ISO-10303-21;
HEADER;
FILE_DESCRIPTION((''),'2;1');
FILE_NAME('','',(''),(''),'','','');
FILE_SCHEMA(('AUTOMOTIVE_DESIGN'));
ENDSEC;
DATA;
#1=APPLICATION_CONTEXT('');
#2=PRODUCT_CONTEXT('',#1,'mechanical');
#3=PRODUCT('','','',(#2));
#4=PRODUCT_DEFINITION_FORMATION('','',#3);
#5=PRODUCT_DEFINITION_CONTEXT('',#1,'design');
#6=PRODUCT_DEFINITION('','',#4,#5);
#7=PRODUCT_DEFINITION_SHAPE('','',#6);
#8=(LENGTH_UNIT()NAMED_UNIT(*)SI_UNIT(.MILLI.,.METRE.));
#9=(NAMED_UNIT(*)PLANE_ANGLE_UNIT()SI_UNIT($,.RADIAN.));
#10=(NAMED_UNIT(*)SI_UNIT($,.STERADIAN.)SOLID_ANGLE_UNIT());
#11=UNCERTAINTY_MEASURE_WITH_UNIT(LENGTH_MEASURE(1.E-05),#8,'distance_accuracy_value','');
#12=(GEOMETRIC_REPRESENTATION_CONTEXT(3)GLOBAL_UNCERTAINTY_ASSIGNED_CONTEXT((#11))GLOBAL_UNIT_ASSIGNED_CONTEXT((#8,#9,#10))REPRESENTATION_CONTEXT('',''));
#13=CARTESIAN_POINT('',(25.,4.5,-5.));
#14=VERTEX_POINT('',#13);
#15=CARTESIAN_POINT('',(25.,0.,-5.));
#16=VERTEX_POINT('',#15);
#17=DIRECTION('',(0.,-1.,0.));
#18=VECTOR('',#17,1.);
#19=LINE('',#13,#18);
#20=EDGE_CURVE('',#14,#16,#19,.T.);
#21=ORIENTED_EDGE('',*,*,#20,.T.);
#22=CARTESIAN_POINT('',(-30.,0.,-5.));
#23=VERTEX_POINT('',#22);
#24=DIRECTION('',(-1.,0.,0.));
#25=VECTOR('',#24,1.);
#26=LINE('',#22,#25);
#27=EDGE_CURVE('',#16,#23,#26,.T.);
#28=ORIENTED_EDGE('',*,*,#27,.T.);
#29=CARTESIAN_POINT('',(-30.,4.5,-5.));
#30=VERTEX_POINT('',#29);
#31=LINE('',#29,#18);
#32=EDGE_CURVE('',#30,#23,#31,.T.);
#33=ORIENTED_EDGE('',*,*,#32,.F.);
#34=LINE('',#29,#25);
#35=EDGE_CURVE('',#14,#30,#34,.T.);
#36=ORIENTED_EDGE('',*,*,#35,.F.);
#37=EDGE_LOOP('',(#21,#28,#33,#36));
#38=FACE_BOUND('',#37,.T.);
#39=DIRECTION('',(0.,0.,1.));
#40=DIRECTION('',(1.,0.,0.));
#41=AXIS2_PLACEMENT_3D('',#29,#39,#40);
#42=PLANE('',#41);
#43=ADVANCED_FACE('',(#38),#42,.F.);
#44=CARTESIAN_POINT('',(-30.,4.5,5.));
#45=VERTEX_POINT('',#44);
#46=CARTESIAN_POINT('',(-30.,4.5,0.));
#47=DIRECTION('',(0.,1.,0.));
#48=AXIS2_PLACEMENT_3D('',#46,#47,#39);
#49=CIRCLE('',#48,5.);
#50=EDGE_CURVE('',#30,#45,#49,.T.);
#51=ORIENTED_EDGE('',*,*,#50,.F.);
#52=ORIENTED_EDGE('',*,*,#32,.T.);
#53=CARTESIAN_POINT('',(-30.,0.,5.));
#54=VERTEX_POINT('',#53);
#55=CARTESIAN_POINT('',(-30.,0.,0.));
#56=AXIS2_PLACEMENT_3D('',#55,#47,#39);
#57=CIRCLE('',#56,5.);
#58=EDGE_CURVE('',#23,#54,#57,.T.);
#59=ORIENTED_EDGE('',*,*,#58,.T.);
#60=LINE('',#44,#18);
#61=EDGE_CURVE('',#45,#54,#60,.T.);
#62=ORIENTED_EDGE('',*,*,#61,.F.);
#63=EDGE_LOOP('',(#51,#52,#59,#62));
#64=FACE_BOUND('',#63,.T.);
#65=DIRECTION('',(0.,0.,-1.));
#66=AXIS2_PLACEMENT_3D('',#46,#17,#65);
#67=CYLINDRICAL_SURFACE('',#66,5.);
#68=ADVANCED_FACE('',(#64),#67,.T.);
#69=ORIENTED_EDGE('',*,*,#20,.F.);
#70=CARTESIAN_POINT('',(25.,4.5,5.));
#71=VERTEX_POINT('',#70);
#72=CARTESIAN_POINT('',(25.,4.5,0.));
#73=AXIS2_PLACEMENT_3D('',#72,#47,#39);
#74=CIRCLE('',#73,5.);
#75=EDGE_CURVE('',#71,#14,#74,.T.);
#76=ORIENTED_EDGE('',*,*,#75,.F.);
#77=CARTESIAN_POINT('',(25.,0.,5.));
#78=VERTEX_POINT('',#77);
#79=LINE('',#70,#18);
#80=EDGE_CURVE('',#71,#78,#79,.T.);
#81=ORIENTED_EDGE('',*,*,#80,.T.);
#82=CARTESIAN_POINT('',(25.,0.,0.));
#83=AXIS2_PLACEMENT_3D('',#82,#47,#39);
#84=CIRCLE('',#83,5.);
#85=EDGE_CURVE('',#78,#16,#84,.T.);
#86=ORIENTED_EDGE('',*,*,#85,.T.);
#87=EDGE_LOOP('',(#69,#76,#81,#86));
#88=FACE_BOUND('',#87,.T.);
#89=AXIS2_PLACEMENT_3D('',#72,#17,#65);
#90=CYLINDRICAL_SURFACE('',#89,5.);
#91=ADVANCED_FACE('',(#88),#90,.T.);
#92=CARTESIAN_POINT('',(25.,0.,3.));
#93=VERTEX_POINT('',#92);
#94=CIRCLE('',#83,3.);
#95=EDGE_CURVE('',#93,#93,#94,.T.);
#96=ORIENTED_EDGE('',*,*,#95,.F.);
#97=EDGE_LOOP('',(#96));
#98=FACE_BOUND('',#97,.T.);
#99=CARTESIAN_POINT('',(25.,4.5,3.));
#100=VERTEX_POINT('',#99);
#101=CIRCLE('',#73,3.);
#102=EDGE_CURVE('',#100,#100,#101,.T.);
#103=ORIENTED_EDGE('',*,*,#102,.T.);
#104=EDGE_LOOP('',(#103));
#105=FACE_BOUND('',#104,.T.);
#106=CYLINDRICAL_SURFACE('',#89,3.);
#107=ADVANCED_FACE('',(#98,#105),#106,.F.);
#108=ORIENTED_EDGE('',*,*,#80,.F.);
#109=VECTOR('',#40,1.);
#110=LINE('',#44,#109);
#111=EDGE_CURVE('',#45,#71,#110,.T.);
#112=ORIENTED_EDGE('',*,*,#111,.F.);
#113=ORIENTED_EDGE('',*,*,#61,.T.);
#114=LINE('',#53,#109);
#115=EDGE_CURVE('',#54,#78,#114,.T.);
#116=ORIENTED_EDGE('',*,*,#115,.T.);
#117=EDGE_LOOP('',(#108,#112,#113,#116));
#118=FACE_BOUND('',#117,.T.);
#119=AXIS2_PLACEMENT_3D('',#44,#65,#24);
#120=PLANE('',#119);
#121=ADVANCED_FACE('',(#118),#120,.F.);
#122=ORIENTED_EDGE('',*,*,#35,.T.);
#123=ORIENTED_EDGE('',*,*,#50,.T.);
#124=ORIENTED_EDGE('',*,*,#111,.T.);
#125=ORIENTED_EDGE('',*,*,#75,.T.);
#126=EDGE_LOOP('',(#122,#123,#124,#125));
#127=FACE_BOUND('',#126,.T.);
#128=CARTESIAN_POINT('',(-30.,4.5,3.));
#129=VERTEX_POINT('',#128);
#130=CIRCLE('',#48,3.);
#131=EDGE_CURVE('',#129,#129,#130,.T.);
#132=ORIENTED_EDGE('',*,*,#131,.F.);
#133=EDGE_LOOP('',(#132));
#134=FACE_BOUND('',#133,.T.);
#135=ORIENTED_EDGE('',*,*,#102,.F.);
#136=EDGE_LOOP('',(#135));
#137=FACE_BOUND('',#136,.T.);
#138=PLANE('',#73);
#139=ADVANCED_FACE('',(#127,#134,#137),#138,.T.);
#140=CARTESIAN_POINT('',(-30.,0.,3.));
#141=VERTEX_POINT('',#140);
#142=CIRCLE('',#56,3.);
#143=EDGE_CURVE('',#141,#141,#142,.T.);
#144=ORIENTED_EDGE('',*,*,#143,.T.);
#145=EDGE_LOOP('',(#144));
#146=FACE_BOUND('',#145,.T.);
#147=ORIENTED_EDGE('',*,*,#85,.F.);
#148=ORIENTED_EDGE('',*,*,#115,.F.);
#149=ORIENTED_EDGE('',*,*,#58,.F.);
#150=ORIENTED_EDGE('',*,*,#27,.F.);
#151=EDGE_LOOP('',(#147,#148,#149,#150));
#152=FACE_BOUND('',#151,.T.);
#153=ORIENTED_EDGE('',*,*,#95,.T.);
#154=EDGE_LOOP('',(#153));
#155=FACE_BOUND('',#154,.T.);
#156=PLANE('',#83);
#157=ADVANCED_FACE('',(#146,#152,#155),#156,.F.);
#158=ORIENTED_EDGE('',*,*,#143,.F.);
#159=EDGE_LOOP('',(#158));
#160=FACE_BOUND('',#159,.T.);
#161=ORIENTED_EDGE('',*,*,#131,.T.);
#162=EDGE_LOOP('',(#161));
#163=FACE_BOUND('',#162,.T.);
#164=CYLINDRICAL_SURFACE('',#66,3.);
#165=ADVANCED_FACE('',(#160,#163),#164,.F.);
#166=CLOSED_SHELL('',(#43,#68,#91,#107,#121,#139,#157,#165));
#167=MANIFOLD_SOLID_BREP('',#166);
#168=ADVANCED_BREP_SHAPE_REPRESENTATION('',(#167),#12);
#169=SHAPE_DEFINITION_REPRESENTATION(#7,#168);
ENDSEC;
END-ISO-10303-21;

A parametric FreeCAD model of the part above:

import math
import FreeCAD as App
import Part
import Sketcher
Q = App.Units.Quantity

doc = App.newDocument("Part")
body = doc.addObject("PartDesign::Body", "Body")

# Sketch on XZ plane
sketch1 = body.newObject("Sketcher::SketchObject", "Sketch")
sketch1.AttachmentSupport = (doc.getObject("XZ_Plane"), [""])
sketch1.MapMode = "FlatFace"
sketch1.addGeometry(Part.LineSegment(App.Vector(25, -5, 0), App.Vector(-30, -5, 0)), False)
sketch1.addGeometry(Part.ArcOfCircle(Part.Circle(App.Vector(-30, 0, 0), App.Vector(0, 0, 1), 5), math.radians(90), math.radians(270)), False)
sketch1.addGeometry(Part.LineSegment(App.Vector(-30, 5, 0), App.Vector(25, 5, 0)), False)
sketch1.addGeometry(Part.ArcOfCircle(Part.Circle(App.Vector(25, 0, 0), App.Vector(0, 0, 1), 5), math.radians(-90), math.radians(90)), False)
sketch1.addGeometry(Part.Circle(App.Vector(25, 0, 0), App.Vector(0, 0, 1), 3), False)
sketch1.addGeometry(Part.Circle(App.Vector(-30, 0, 0), App.Vector(0, 0, 1), 3), False)
sketch1.addConstraint(Sketcher.Constraint("Tangent", 0, 2, 1, 2))
sketch1.addConstraint(Sketcher.Constraint("Tangent", 1, 1, 2, 1))
sketch1.addConstraint(Sketcher.Constraint("Tangent", 2, 2, 3, 2))
sketch1.addConstraint(Sketcher.Constraint("Tangent", 3, 1, 0, 1))
sketch1.addConstraint(Sketcher.Constraint("Horizontal", 0))
sketch1.addConstraint(Sketcher.Constraint("Horizontal", 2))
sketch1.addConstraint(Sketcher.Constraint("Coincident", 4, 3, 3, 3))
sketch1.addConstraint(Sketcher.Constraint("Coincident", 5, 3, 1, 3))
sketch1.addConstraint(Sketcher.Constraint("Equal", 4, 5))
sketch1.addConstraint(Sketcher.Constraint("PointOnObject", 1, 3, -1))
sketch1.addConstraint(Sketcher.Constraint("Diameter", 4, Q("6 mm")))
sketch1.addConstraint(Sketcher.Constraint("Radius", 1, Q("5 mm")))
sketch1.addConstraint(Sketcher.Constraint("DistanceX", 0, 2, 0, 1, Q("55 mm")))
sketch1.addConstraint(Sketcher.Constraint("DistanceX", 1, 3, -1, 1, Q("30 mm")))
pad1 = body.newObject("PartDesign::Pad", "Pad")
pad1.Profile = sketch1
pad1.Length = 4.5
pad1.Reversed = True

doc.recompute()
